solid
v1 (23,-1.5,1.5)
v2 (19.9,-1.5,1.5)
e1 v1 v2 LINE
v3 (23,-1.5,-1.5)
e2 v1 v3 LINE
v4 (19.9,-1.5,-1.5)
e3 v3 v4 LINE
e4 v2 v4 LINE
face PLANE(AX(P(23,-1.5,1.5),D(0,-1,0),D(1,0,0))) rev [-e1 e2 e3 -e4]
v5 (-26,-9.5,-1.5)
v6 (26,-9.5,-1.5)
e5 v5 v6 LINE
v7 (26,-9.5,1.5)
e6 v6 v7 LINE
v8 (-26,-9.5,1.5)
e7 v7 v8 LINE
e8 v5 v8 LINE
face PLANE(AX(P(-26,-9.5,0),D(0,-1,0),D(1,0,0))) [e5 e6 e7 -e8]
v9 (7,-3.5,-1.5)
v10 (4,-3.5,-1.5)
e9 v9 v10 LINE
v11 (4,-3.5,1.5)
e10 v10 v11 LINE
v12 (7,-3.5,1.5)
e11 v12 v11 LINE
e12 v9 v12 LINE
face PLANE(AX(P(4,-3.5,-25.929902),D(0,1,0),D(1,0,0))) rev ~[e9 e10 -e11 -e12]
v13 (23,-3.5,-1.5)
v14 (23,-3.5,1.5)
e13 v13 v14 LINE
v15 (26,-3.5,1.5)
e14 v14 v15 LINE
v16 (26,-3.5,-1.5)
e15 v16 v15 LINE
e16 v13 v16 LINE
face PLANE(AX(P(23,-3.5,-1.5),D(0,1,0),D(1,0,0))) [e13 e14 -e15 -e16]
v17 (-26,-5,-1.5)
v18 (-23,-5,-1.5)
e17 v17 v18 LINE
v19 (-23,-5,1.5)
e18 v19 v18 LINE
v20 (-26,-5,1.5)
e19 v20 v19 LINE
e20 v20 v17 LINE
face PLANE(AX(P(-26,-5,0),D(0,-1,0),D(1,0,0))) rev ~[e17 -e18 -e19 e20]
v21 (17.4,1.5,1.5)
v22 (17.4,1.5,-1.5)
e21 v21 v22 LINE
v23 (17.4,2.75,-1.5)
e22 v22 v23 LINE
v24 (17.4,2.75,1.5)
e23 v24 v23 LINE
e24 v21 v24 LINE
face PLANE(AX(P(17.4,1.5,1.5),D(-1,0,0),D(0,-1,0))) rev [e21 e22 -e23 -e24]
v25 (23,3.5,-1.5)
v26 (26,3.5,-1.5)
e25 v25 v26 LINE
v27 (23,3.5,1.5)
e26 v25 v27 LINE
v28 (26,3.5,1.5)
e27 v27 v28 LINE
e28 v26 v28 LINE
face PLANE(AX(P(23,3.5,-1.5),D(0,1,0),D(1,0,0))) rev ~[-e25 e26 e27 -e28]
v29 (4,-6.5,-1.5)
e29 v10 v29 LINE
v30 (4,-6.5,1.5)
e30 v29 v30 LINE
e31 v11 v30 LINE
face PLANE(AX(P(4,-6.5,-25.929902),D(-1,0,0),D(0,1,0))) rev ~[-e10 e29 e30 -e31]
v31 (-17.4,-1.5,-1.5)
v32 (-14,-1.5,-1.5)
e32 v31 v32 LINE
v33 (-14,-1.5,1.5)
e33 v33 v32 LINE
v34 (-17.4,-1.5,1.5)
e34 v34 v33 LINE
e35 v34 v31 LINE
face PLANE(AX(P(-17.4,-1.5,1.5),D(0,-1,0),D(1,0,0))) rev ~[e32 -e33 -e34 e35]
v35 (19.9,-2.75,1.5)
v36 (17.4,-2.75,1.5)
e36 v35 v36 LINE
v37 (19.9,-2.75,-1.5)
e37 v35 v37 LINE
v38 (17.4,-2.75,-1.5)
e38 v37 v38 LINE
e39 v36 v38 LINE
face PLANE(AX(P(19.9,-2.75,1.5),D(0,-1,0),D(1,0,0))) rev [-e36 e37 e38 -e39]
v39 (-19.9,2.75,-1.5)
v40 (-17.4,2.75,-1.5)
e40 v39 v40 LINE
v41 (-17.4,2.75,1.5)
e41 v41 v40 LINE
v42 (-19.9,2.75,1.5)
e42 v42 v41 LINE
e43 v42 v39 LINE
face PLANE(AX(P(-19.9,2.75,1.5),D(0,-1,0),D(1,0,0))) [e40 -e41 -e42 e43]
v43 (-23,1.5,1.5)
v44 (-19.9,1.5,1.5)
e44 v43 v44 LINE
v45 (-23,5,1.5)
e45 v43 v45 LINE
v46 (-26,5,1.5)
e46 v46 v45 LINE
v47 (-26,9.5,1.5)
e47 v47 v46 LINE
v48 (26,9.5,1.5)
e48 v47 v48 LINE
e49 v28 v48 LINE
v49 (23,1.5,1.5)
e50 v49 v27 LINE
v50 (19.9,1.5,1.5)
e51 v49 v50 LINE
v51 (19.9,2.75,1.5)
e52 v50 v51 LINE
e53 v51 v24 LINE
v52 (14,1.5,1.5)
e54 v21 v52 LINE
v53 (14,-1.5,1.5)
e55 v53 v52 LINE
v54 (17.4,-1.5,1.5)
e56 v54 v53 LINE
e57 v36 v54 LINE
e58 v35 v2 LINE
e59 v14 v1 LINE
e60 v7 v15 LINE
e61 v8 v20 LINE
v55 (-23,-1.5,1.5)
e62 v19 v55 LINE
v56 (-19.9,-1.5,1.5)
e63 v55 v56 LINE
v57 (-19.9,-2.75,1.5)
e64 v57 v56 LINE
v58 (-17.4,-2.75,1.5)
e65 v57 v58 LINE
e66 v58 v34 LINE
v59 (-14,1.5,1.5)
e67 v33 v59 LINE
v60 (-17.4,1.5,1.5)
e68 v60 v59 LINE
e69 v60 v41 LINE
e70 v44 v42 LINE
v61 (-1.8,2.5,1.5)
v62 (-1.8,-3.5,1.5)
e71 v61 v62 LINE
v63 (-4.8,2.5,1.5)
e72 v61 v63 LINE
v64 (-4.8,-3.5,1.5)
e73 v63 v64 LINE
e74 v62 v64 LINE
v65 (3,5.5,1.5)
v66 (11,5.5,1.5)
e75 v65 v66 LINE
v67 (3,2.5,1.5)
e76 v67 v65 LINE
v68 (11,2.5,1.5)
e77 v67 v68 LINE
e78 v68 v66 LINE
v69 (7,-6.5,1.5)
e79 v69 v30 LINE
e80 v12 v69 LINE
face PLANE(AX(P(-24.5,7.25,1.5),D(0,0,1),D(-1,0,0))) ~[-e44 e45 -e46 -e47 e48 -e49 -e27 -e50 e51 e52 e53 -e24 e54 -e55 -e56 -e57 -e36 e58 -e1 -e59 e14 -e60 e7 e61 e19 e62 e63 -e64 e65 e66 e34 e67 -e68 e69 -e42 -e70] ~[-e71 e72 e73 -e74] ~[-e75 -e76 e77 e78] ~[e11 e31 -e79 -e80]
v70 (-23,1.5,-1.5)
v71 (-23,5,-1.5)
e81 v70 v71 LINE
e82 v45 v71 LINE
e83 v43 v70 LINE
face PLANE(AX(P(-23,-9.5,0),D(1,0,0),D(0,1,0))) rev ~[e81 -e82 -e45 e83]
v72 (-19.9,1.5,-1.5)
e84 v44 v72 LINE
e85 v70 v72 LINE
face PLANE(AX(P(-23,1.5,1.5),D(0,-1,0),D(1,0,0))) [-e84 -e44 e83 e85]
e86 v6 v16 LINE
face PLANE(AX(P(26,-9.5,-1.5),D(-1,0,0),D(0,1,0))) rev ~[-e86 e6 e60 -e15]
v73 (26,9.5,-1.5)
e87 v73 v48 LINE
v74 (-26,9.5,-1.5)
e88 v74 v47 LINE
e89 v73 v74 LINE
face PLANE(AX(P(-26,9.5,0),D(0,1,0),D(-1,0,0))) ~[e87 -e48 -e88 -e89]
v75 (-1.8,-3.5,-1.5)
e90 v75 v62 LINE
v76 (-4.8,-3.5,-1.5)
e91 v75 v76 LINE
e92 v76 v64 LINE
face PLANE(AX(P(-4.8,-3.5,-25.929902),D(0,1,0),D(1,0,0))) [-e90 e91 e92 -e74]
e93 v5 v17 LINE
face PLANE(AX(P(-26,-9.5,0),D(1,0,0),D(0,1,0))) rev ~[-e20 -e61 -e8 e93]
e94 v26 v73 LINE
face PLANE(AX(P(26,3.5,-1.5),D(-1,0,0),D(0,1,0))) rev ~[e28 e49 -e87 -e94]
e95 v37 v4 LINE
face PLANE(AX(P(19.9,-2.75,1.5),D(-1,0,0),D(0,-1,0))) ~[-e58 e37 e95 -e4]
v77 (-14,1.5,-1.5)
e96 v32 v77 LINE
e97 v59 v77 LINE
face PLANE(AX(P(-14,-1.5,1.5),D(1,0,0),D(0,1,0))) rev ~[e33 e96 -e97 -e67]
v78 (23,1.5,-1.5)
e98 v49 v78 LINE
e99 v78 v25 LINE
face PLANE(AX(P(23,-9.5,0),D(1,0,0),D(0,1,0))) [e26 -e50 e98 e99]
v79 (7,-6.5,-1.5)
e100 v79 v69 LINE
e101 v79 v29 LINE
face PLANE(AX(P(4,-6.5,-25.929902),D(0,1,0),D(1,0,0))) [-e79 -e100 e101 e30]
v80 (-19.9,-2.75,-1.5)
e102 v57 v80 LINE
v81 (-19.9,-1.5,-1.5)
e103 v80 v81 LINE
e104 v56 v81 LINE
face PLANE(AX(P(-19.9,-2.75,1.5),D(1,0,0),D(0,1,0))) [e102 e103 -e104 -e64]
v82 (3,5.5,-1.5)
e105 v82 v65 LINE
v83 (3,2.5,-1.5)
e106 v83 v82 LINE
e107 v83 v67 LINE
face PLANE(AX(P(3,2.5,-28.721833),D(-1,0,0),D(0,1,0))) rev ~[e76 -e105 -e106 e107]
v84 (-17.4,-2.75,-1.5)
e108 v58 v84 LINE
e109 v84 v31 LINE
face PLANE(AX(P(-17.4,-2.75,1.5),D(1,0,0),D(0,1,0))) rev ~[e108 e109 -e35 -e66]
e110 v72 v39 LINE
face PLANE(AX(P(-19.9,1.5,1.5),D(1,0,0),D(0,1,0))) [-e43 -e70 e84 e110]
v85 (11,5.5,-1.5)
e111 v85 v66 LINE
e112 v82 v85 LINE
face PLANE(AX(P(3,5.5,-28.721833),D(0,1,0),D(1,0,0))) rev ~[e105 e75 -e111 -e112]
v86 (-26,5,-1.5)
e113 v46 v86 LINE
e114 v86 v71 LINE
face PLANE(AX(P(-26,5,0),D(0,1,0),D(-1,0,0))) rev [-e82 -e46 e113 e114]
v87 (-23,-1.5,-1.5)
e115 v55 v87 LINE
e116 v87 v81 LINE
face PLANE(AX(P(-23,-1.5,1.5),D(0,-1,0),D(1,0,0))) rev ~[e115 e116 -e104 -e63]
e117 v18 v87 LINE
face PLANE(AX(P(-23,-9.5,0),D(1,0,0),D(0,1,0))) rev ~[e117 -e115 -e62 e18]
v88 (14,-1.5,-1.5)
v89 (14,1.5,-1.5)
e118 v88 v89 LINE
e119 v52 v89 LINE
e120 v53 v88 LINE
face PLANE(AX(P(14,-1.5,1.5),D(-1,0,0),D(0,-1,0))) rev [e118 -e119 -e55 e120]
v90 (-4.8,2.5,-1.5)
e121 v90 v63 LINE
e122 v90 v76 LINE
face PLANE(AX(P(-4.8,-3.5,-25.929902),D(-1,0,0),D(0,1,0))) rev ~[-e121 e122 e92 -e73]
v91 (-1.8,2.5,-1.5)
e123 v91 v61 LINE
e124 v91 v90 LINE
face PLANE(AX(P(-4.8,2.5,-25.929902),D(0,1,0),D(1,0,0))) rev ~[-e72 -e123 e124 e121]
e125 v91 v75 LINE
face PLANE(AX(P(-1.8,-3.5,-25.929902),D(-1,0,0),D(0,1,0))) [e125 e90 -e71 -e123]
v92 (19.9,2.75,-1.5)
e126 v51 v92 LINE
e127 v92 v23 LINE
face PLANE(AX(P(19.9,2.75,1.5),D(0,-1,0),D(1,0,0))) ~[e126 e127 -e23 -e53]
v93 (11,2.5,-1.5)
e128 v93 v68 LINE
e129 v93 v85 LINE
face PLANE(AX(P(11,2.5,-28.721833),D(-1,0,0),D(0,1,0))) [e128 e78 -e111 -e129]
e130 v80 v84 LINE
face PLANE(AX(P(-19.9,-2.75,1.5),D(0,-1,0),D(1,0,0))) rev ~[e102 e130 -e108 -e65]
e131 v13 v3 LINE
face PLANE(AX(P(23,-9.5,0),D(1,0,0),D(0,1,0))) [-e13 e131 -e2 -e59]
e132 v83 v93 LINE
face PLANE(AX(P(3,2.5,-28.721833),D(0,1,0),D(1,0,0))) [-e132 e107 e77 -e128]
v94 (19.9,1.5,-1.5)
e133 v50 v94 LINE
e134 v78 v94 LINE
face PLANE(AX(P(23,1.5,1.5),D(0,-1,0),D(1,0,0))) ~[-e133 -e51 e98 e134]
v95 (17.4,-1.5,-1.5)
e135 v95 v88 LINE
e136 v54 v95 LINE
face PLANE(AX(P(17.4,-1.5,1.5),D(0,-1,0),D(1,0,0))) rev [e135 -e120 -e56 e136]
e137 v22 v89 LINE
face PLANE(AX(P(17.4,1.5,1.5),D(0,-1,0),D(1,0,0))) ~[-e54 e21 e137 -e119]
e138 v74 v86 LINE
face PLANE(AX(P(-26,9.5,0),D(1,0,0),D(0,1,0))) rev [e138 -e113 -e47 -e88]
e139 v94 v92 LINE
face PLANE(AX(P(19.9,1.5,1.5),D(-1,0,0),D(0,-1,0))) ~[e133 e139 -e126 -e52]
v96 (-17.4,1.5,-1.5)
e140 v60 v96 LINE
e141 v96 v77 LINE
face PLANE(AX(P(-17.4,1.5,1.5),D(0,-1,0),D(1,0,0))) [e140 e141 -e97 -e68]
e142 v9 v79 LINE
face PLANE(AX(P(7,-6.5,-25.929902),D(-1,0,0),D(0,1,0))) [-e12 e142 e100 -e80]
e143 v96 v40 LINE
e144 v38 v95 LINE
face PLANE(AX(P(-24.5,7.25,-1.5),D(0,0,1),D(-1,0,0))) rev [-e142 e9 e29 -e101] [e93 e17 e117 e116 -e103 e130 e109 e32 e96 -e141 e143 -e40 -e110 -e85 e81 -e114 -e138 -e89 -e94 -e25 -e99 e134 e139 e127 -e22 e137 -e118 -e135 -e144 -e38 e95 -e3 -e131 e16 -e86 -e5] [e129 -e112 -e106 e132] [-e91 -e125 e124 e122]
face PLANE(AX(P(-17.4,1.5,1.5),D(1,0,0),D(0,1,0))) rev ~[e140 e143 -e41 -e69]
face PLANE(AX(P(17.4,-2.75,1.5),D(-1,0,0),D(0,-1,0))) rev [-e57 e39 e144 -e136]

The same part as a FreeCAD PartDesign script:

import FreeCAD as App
import Part
import Sketcher

V = App.Vector

doc = App.newDocument("Part")
body = doc.addObject("PartDesign::Body", "Body")

# Sketch on XY plane
sketch1 = doc.addObject("Sketcher::SketchObject", "Sketch")
body.addObject(sketch1)
sketch1.AttachmentSupport = (doc.XY_Plane, [""])
sketch1.MapMode = "FlatFace"
sketch1.addGeometry([
    Part.LineSegment(V(-23, 10, 0), V(-23, -10, 0)),
    Part.LineSegment(V(-23, -10, 0), V(23, -10, 0)),
    Part.LineSegment(V(23, -10, 0), V(23, 10, 0)),
    Part.LineSegment(V(23, 10, 0), V(-23, 10, 0)),
], False)
sketch1.addConstraint([
    Sketcher.Constraint("Coincident", 0, 2, 1, 1),
    Sketcher.Constraint("Coincident", 1, 2, 2, 1),
    Sketcher.Constraint("Coincident", 2, 2, 3, 1),
    Sketcher.Constraint("Coincident", 3, 2, 0, 1),
    Sketcher.Constraint("Vertical", 0),
    Sketcher.Constraint("Horizontal", 1),
    Sketcher.Constraint("Vertical", 2),
    Sketcher.Constraint("Horizontal", 3),
    Sketcher.Constraint("Symmetric", 0, 2, 2, 2, -1, 1),
    Sketcher.Constraint("DistanceX", 1, 1, 1, 2, 46.0),
    Sketcher.Constraint("DistanceY", 0, 2, 0, 1, 19.0),
])
pad1 = doc.addObject("PartDesign::Pad", "Pad")
body.addObject(pad1)
pad1.Profile = sketch1
pad1.Length = 3
pad1.Midplane = True

# Sketch on XY plane
sketch2 = doc.addObject("Sketcher::SketchObject", "Sketch001")
body.addObject(sketch2)
sketch2.AttachmentSupport = (doc.XY_Plane, [""])
sketch2.MapMode = "FlatFace"
sketch2.addGeometry([
    Part.LineSegment(V(-4.8, 2.5, 0), V(-4.8, -3.5, 0)),
    Part.LineSegment(V(-4.8, -3.5, 0), V(-1.8, -3.5, 0)),
    Part.LineSegment(V(-1.8, -3.5, 0), V(-1.8, 2.5, 0)),
    Part.LineSegment(V(-1.8, 2.5, 0), V(-4.8, 2.5, 0)),
], False)
sketch2.addConstraint([
    Sketcher.Constraint("Coincident", 0, 2, 1, 1),
    Sketcher.Constraint("Coincident", 1, 2, 2, 1),
    Sketcher.Constraint("Coincident", 2, 2, 3, 1),
    Sketcher.Constraint("Coincident", 3, 2, 0, 1),
    Sketcher.Constraint("Vertical", 0),
    Sketcher.Constraint("Horizontal", 1),
    Sketcher.Constraint("Vertical", 2),
    Sketcher.Constraint("Horizontal", 3),
    Sketcher.Constraint("DistanceX", 1, 1, 1, 2, 3.0),
    Sketcher.Constraint("DistanceY", 0, 2, 0, 1, 6.0),
    Sketcher.Constraint("DistanceX", 0, 2, -1, 1, 4.8),
    Sketcher.Constraint("DistanceY", 0, 2, -1, 1, 3.5),
])
pocket1 = doc.addObject("PartDesign::Pocket", "Pocket")
body.addObject(pocket1)
pocket1.Profile = sketch2
pocket1.Type = "ThroughAll"
pocket1.Midplane = True

# Sketch on XY plane
sketch3 = doc.addObject("Sketcher::SketchObject", "Sketch002")
body.addObject(sketch3)
sketch3.AttachmentSupport = (doc.XY_Plane, [""])
sketch3.MapMode = "FlatFace"
sketch3.addGeometry([
    Part.LineSegment(V(4, -3.5, 0), V(4, -6.5, 0)),
    Part.LineSegment(V(4, -6.5, 0), V(7, -6.5, 0)),
    Part.LineSegment(V(7, -6.5, 0), V(7, -3.5, 0)),
    Part.LineSegment(V(7, -3.5, 0), V(4, -3.5, 0)),
], False)
sketch3.addConstraint([
    Sketcher.Constraint("Coincident", 0, 2, 1, 1),
    Sketcher.Constraint("Coincident", 1, 2, 2, 1),
    Sketcher.Constraint("Coincident", 2, 2, 3, 1),
    Sketcher.Constraint("Coincident", 3, 2, 0, 1),
    Sketcher.Constraint("Vertical", 0),
    Sketcher.Constraint("Horizontal", 1),
    Sketcher.Constraint("Vertical", 2),
    Sketcher.Constraint("Horizontal", 3),
    Sketcher.Constraint("Equal", 3, 0),
    Sketcher.Constraint("DistanceX", 1, 1, 1, 2, 3.0),
    Sketcher.Constraint("DistanceX", -1, 1, 0, 2, 4.0),
    Sketcher.Constraint("DistanceY", 0, 2, -1, 1, 6.5),
])
pocket2 = doc.addObject("PartDesign::Pocket", "Pocket001")
body.addObject(pocket2)
pocket2.Profile = sketch3
pocket2.Type = "ThroughAll"
pocket2.Midplane = True

# Sketch on XY plane
sketch4 = doc.addObject("Sketcher::SketchObject", "Sketch003")
body.addObject(sketch4)
sketch4.AttachmentSupport = (doc.XY_Plane, [""])
sketch4.MapMode = "FlatFace"
sketch4.addGeometry([
    Part.LineSegment(V(23, 9.5, 0), V(23, 3.5, 0)),  # 0
    Part.LineSegment(V(23, 3.5, 0), V(26, 3.5, 0)),  # 1
    Part.LineSegment(V(26, 3.5, 0), V(26, 9.5, 0)),  # 2
    Part.LineSegment(V(26, 9.5, 0), V(23, 9.5, 0)),  # 3
    Part.LineSegment(V(23, -3.5, 0), V(23, -9.5, 0)),  # 4
    Part.LineSegment(V(23, -9.5, 0), V(26, -9.5, 0)),  # 5
    Part.LineSegment(V(26, -9.5, 0), V(26, -3.5, 0)),  # 6
    Part.LineSegment(V(26, -3.5, 0), V(23, -3.5, 0)),  # 7
], False)
sketch4.addConstraint([
    Sketcher.Constraint("Coincident", 0, 2, 1, 1),
    Sketcher.Constraint("Coincident", 1, 2, 2, 1),
    Sketcher.Constraint("Coincident", 2, 2, 3, 1),
    Sketcher.Constraint("Coincident", 3, 2, 0, 1),
    Sketcher.Constraint("Coincident", 4, 2, 5, 1),
    Sketcher.Constraint("Coincident", 5, 2, 6, 1),
    Sketcher.Constraint("Coincident", 6, 2, 7, 1),
    Sketcher.Constraint("Coincident", 7, 2, 4, 1),
    Sketcher.Constraint("Vertical", 0),
    Sketcher.Constraint("Horizontal", 1),
    Sketcher.Constraint("Vertical", 2),
    Sketcher.Constraint("Horizontal", 3),
    Sketcher.Constraint("Vertical", 4),
    Sketcher.Constraint("Horizontal", 5),
    Sketcher.Constraint("Vertical", 6),
    Sketcher.Constraint("Horizontal", 7),
    Sketcher.Constraint("Symmetric", 3, 2, 4, 2, -1),
    Sketcher.Constraint("Symmetric", 1, 2, 6, 2, -1),
    Sketcher.Constraint("DistanceX", 1, 1, 1, 2, 3.0),
    Sketcher.Constraint("DistanceY", 0, 2, 0, 1, 6.0),
    Sketcher.Constraint("DistanceX", -1, 1, 0, 2, 23.0),
    Sketcher.Constraint("DistanceY", 4, 2, 0, 2, 13.0),
])
pad2 = doc.addObject("PartDesign::Pad", "Pad001")
body.addObject(pad2)
pad2.Profile = sketch4
pad2.Type = "TwoLengths"
pad2.Length = 1.5
pad2.Length2 = 1.5

# Sketch on XY plane
sketch5 = doc.addObject("Sketcher::SketchObject", "Sketch004")
body.addObject(sketch5)
sketch5.AttachmentSupport = (doc.XY_Plane, [""])
sketch5.MapMode = "FlatFace"
sketch5.AttachmentOffset = App.Placement(V(0, 0, 1.5), App.Rotation())
sketch5.addGeometry([
    Part.LineSegment(V(-23, 1.5, 0), V(-23, -1.5, 0)),  # 0
    Part.LineSegment(V(-23, -1.5, 0), V(-19.9, -1.5, 0)),  # 1
    Part.LineSegment(V(-19.9, -1.5, 0), V(-19.9, -2.8, 0)),  # 2
    Part.LineSegment(V(-19.9, -2.8, 0), V(-17.4, -2.8, 0)),  # 3
    Part.LineSegment(V(-17.4, -2.8, 0), V(-17.4, -1.5, 0)),  # 4
    Part.LineSegment(V(-17.4, -1.5, 0), V(-14, -1.5, 0)),  # 5
    Part.LineSegment(V(-14, -1.5, 0), V(-14, 1.5, 0)),  # 6
    Part.LineSegment(V(-14, 1.5, 0), V(-17.4, 1.5, 0)),  # 7
    Part.LineSegment(V(-17.4, 1.5, 0), V(-17.4, 2.8, 0)),  # 8
    Part.LineSegment(V(-17.4, 2.8, 0), V(-19.9, 2.8, 0)),  # 9
    Part.LineSegment(V(-19.9, 2.8, 0), V(-19.9, 1.5, 0)),  # 10
    Part.LineSegment(V(-19.9, 1.5, 0), V(-23, 1.5, 0)),  # 11
], False)
sketch5.addConstraint([
    Sketcher.Constraint("Coincident", 0, 2, 1, 1),
    Sketcher.Constraint("Coincident", 1, 2, 2, 1),
    Sketcher.Constraint("Coincident", 2, 2, 3, 1),
    Sketcher.Constraint("Coincident", 3, 2, 4, 1),
    Sketcher.Constraint("Coincident", 4, 2, 5, 1),
    Sketcher.Constraint("Coincident", 5, 2, 6, 1),
    Sketcher.Constraint("Coincident", 6, 2, 7, 1),
    Sketcher.Constraint("Coincident", 7, 2, 8, 1),
    Sketcher.Constraint("Coincident", 8, 2, 9, 1),
    Sketcher.Constraint("Coincident", 9, 2, 10, 1),
    Sketcher.Constraint("Coincident", 10, 2, 11, 1),
    Sketcher.Constraint("Coincident", 11, 2, 0, 1),
    Sketcher.Constraint("Vertical", 0),
    Sketcher.Constraint("Horizontal", 1),
    Sketcher.Constraint("Vertical", 2),
    Sketcher.Constraint("Horizontal", 3),
    Sketcher.Constraint("Vertical", 4),
    Sketcher.Constraint("Horizontal", 5),
    Sketcher.Constraint("Vertical", 6),
    Sketcher.Constraint("Horizontal", 7),
    Sketcher.Constraint("Vertical", 8),
    Sketcher.Constraint("Horizontal", 9),
    Sketcher.Constraint("Vertical", 10),
    Sketcher.Constraint("Horizontal", 11),
    Sketcher.Constraint("Symmetric", 4, 2, 7, 2, -1),
    Sketcher.Constraint("Symmetric", 2, 2, 9, 2, -1),
    Sketcher.Constraint("Horizontal", 1, 2, 4, 2),
    Sketcher.Constraint("Horizontal", 7, 2, 10, 2),
    Sketcher.Constraint("DistanceY", 0, 2, 0, 1, 3.0),
    Sketcher.Constraint("DistanceX", 1, 1, 1, 2, 3.1),
    Sketcher.Constraint("DistanceX", 3, 1, 3, 2, 2.5),
    Sketcher.Constraint("DistanceX", 5, 1, 5, 2, 3.4),
    Sketcher.Constraint("DistanceX", 0, 2, -1, 1, 23.0),
    Sketcher.Constraint("DistanceY", 2, 2, 2, 1, 1.25),
])
pocket3 = doc.addObject("PartDesign::Pocket", "Pocket002")
body.addObject(pocket3)
pocket3.Profile = sketch5
pocket3.Length = 3
doc.recompute()

mirrored = doc.addObject("PartDesign::Mirrored", "Mirrored")
body.addObject(mirrored)
mirrored.Originals = [pocket3]
mirrored.MirrorPlane = (doc.YZ_Plane, [""])
body.Tip = mirrored

# Sketch on XY plane
sketch6 = doc.addObject("Sketcher::SketchObject", "Sketch005")
body.addObject(sketch6)
sketch6.AttachmentSupport = (doc.XY_Plane, [""])
sketch6.MapMode = "FlatFace"
sketch6.addGeometry([
    Part.LineSegment(V(-26, -5, 0), V(-26, -9.5, 0)),
    Part.LineSegment(V(-26, -9.5, 0), V(-23, -9.5, 0)),
    Part.LineSegment(V(-23, -9.5, 0), V(-23, -5, 0)),
    Part.LineSegment(V(-23, -5, 0), V(-26, -5, 0)),
], False)
sketch6.addConstraint([
    Sketcher.Constraint("Coincident", 0, 2, 1, 1),
    Sketcher.Constraint("Coincident", 1, 2, 2, 1),
    Sketcher.Constraint("Coincident", 2, 2, 3, 1),
    Sketcher.Constraint("Coincident", 3, 2, 0, 1),
    Sketcher.Constraint("Vertical", 0),
    Sketcher.Constraint("Horizontal", 1),
    Sketcher.Constraint("Vertical", 2),
    Sketcher.Constraint("Horizontal", 3),
    Sketcher.Constraint("DistanceX", 1, 1, 1, 2, 3.0),
    Sketcher.Constraint("DistanceY", 0, 2, 0, 1, 4.5),
    Sketcher.Constraint("DistanceX", 0, 2, -1, 1, 26.0),
    Sketcher.Constraint("DistanceY", 2, 2, -1, 1, 5.0),
])
pad3 = doc.addObject("PartDesign::Pad", "Pad002")
body.addObject(pad3)
pad3.Profile = sketch6
pad3.Length = 3
pad3.Midplane = True
doc.recompute()

mirrored2 = doc.addObject("PartDesign::Mirrored", "Mirrored001")
body.addObject(mirrored2)
mirrored2.Originals = [pocket3, pad3]
mirrored2.MirrorPlane = (doc.XZ_Plane, [""])
body.Tip = mirrored2

# Sketch on XY plane
sketch7 = doc.addObject("Sketcher::SketchObject", "Sketch006")
body.addObject(sketch7)
sketch7.AttachmentSupport = (doc.XY_Plane, [""])
sketch7.MapMode = "FlatFace"
sketch7.addGeometry([
    Part.LineSegment(V(3, 5.5, 0), V(3, 2.5, 0)),
    Part.LineSegment(V(3, 2.5, 0), V(11, 2.5, 0)),
    Part.LineSegment(V(11, 2.5, 0), V(11, 5.5, 0)),
    Part.LineSegment(V(11, 5.5, 0), V(3, 5.5, 0)),
], False)
sketch7.addConstraint([
    Sketcher.Constraint("Coincident", 0, 2, 1, 1),
    Sketcher.Constraint("Coincident", 1, 2, 2, 1),
    Sketcher.Constraint("Coincident", 2, 2, 3, 1),
    Sketcher.Constraint("Coincident", 3, 2, 0, 1),
    Sketcher.Constraint("Vertical", 0),
    Sketcher.Constraint("Horizontal", 1),
    Sketcher.Constraint("Vertical", 2),
    Sketcher.Constraint("Horizontal", 3),
    Sketcher.Constraint("DistanceX", 1, 1, 1, 2, 8.0),
    Sketcher.Constraint("DistanceY", 0, 2, 0, 1, 3.0),
    Sketcher.Constraint("DistanceX", -1, 1, 0, 2, 3.0),
    Sketcher.Constraint("DistanceY", -1, 1, 0, 2, 2.5),
])
pocket4 = doc.addObject("PartDesign::Pocket", "Pocket003")
body.addObject(pocket4)
pocket4.Profile = sketch7
pocket4.Type = "ThroughAll"
pocket4.Midplane = True

doc.recompute()
